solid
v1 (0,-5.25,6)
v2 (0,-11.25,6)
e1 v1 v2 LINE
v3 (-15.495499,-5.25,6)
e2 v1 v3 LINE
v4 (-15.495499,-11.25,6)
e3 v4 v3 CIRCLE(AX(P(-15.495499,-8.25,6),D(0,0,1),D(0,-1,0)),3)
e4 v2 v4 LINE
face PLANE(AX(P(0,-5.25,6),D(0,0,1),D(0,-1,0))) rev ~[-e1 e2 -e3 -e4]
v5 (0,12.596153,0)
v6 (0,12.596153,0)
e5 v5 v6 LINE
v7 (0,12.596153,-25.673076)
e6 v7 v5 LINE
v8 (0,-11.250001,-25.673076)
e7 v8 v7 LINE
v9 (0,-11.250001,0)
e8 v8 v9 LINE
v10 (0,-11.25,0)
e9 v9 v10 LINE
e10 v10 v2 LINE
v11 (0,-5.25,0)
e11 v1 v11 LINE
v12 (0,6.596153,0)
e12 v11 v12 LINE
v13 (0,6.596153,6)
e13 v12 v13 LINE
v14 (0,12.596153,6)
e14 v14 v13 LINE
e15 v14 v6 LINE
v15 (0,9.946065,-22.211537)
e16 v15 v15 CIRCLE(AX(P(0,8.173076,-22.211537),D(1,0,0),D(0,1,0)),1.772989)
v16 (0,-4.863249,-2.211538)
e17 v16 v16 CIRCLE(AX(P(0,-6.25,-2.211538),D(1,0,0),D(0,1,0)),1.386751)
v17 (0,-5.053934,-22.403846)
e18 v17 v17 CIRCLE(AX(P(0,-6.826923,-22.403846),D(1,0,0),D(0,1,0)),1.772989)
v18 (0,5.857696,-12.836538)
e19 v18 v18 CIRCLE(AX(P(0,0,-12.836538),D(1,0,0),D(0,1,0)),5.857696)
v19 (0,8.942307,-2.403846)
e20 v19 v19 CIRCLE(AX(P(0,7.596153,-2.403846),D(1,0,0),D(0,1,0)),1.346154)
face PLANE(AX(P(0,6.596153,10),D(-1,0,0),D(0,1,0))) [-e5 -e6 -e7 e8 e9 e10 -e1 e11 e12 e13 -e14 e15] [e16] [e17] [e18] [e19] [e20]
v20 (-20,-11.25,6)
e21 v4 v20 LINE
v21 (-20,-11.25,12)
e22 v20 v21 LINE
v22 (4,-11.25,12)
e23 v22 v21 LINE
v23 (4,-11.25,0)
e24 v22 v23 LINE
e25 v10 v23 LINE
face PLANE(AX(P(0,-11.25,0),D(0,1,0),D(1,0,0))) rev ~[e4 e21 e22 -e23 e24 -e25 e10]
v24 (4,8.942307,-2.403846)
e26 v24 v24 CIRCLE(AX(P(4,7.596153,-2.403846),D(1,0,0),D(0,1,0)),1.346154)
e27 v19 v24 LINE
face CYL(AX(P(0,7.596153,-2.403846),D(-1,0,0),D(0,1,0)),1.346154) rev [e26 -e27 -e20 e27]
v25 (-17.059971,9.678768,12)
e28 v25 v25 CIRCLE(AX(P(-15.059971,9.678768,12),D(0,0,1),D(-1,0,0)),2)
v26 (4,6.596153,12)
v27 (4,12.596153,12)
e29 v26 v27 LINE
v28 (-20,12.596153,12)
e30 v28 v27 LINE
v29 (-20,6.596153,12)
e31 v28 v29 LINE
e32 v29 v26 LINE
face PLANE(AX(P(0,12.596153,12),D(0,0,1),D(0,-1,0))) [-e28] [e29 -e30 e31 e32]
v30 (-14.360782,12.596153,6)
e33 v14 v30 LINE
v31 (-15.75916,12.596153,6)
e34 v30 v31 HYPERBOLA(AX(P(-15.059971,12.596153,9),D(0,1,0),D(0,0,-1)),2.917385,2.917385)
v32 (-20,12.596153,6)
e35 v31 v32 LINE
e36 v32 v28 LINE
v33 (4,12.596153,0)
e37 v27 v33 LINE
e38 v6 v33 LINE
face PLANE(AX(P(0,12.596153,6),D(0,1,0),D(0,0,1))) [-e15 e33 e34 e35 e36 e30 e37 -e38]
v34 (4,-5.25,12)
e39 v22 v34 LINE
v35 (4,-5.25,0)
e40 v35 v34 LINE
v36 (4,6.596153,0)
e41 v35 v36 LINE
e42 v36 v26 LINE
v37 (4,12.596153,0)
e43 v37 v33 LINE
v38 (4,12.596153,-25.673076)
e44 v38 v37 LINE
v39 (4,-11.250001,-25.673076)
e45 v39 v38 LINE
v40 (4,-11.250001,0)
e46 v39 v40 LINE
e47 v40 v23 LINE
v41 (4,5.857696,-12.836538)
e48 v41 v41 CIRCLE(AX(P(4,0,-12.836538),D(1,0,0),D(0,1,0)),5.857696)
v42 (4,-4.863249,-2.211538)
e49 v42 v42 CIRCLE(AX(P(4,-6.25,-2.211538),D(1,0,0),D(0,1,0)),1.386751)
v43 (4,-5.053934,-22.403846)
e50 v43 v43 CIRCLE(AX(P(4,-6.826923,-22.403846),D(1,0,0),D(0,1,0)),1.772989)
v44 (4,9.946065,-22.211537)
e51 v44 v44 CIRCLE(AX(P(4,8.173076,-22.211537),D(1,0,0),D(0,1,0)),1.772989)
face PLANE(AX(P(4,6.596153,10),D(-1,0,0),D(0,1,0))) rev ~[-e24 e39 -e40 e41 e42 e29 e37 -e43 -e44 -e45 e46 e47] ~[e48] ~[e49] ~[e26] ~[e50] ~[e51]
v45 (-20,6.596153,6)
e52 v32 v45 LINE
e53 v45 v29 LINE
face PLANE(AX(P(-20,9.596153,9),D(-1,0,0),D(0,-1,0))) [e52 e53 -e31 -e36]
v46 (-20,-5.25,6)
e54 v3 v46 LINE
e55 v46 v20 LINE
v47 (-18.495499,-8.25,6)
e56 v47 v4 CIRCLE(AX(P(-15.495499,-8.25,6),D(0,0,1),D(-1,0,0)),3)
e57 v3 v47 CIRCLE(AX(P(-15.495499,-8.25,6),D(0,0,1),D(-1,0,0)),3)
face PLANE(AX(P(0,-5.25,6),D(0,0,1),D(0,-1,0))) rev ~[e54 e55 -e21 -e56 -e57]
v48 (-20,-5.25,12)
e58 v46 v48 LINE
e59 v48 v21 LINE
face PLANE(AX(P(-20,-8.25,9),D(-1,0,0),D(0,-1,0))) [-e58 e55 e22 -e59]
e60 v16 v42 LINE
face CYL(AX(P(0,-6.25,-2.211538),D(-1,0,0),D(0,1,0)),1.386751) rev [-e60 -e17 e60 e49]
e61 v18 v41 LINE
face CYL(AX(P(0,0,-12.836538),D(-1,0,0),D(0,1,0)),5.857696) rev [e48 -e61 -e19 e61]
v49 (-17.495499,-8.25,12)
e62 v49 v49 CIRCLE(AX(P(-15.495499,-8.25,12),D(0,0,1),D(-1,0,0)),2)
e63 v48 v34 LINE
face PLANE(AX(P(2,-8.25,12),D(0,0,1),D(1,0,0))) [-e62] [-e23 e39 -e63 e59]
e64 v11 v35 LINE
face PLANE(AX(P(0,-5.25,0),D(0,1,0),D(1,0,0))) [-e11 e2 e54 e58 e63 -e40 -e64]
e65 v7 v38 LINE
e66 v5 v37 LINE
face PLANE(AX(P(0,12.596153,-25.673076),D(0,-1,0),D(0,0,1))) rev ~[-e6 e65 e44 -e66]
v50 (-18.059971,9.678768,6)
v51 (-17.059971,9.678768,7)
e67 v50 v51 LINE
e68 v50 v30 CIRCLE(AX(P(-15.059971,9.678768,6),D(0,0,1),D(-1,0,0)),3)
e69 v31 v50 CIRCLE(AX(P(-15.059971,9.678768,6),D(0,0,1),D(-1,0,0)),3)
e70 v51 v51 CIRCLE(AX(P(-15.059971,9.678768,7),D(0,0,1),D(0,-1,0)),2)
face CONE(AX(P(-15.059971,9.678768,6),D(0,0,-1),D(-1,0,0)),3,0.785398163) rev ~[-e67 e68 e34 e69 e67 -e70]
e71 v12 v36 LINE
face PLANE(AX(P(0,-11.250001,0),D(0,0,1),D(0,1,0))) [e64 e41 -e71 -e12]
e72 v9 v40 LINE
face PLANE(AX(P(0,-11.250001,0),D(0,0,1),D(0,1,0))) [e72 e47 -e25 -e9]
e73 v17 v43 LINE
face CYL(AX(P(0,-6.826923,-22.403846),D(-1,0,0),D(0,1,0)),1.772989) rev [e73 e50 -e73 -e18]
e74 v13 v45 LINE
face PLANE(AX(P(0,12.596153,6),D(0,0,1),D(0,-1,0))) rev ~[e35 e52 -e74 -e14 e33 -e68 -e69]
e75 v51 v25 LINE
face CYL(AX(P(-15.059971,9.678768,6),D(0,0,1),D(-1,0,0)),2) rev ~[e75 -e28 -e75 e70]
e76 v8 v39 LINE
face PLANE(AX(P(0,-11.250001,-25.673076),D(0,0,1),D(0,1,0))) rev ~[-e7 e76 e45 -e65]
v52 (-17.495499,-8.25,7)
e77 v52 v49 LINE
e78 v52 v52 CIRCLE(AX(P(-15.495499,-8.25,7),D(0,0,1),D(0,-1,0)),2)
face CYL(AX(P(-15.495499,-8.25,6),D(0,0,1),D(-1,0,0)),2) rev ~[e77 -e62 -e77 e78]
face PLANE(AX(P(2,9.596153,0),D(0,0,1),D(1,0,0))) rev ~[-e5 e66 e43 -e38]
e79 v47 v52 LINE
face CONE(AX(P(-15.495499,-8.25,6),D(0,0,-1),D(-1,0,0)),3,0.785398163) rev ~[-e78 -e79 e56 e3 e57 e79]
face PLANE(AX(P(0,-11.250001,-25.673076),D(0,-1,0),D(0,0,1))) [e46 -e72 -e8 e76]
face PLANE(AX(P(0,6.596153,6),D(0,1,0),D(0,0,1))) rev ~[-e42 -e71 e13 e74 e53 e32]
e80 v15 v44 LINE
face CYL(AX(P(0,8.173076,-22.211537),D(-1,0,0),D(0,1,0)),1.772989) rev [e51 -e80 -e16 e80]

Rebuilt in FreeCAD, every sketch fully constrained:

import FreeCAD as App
import Part
import Sketcher

V = App.Vector


def add_polygon(sketch, points):
    """Adds a closed chain of lines whose ends are joined by coincident constraints."""
    first, n = sketch.GeometryCount, len(points)
    for a, b in zip(points, points[1:] + points[:1]):
        sketch.addGeometry(Part.LineSegment(App.Vector(*a, 0), App.Vector(*b, 0)), False)
    for i in range(n):
        sketch.addConstraint(Sketcher.Constraint("Coincident", first + i, 2, first + (i + 1) % n, 1))

doc = App.newDocument("Part")
body = doc.addObject("PartDesign::Body", "Body")

sketch1 = body.newObject("Sketcher::SketchObject", "Sketch")
sketch1.AttachmentSupport = (doc.getObject("YZ_Plane"), [""])
sketch1.MapMode = "FlatFace"
add_polygon(sketch1, [(-11.3, 0), (-11.3, -25.7), (12.6, -25.7), (12.6, 0)])
sketch1.addGeometry(Part.Circle(V(-6.8, -22.4, 0), V(0, 0, 1), 1.8), False)
sketch1.addGeometry(Part.Circle(V(0, -12.8, 0), V(0, 0, 1), 5.9), False)
sketch1.addGeometry(Part.Circle(V(8.2, -22.2, 0), V(0, 0, 1), 1.8), False)
sketch1.addGeometry(Part.Circle(V(-6.2, -2.2, 0), V(0, 0, 1), 1.4), False)
sketch1.addGeometry(Part.Circle(V(7.6, -2.4, 0), V(0, 0, 1), 1.3), False)
sketch1.addConstraint([
    Sketcher.Constraint("Vertical", 0),
    Sketcher.Constraint("Horizontal", 1),
    Sketcher.Constraint("Vertical", 2),
    Sketcher.Constraint("Horizontal", 3),
    Sketcher.Constraint("Equal", 4, 6),
    Sketcher.Constraint("PointOnObject", 5, 3, -2),
    Sketcher.Constraint("PointOnObject", 2, 2, -1),
    Sketcher.Constraint("DistanceX", 4, 3, 6, 3, 14.999999),
    Sketcher.Constraint("DistanceY", 6, 3, 7, 3, 19.999999),
    Sketcher.Constraint("DistanceY", 4, 3, 8, 3, 20.0),
    Sketcher.Constraint("DistanceX", 0, 2, 7, 3, 5.000001),
    Sketcher.Constraint("DistanceX", 8, 3, 1, 2, 5.0),
    Sketcher.Constraint("Diameter", 8, 2.692308),
    Sketcher.Constraint("DistanceX", 7, 3, -1, 1, 6.25),
    Sketcher.Constraint("Diameter", 4, 3.545978),
    Sketcher.Constraint("Diameter", 5, 11.715392),
    Sketcher.Constraint("Diameter", 7, 2.773502),
    Sketcher.Constraint("DistanceY", 6, 3, 5, 3, 9.374999),
    Sketcher.Constraint("DistanceX", 1, 1, 1, 2, 23.846153),
    Sketcher.Constraint("DistanceY", 0, 2, 0, 1, 25.673076),
    Sketcher.Constraint("DistanceY", 7, 3, -1, 1, 2.211538),
    Sketcher.Constraint("DistanceY", 4, 3, 5, 3, 9.567308),
    Sketcher.Constraint("DistanceX", 4, 3, -1, 1, 6.826923),
])
pad1 = body.newObject("PartDesign::Pad", "Pad")
pad1.Profile = sketch1
pad1.Length = 4

sketch2 = body.newObject("Sketcher::SketchObject", "Sketch001")
sketch2.AttachmentSupport = (doc.getObject("XY_Plane"), [""])
sketch2.MapMode = "FlatFace"
add_polygon(sketch2, [(0, 12.6), (0, 6.6), (4, 6.6), (4, 12.6)])
add_polygon(sketch2, [(0, -5.2), (0, -11.2), (4, -11.2), (4, -5.2)])
sketch2.addConstraint([
    Sketcher.Constraint("Vertical", 0),
    Sketcher.Constraint("Horizontal", 1),
    Sketcher.Constraint("Vertical", 2),
    Sketcher.Constraint("Horizontal", 3),
    Sketcher.Constraint("Vertical", 4),
    Sketcher.Constraint("Horizontal", 5),
    Sketcher.Constraint("Vertical", 6),
    Sketcher.Constraint("Horizontal", 7),
    Sketcher.Constraint("PointOnObject", 0, 2, -2),
    Sketcher.Constraint("PointOnObject", 4, 2, -2),
    Sketcher.Constraint("Vertical", 2, 2, 5, 2),
    Sketcher.Constraint("Equal", 2, 4),
    Sketcher.Constraint("DistanceX", 1, 1, 1, 2, 4.0),
    Sketcher.Constraint("DistanceY", 0, 2, 0, 1, 6.0),
    Sketcher.Constraint("DistanceY", 4, 2, -1, 1, 11.25),
    Sketcher.Constraint("DistanceY", -1, 1, 0, 2, 6.596153),
])
pad2 = body.newObject("PartDesign::Pad", "Pad001")
pad2.Profile = sketch2
pad2.Length = 10

sketch3 = body.newObject("Sketcher::SketchObject", "Sketch002")
sketch3.AttachmentSupport = (doc.getObject("XY_Plane"), [""])
sketch3.MapMode = "FlatFace"
sketch3.AttachmentOffset = App.Placement(V(0, 0, 10), App.Rotation())
add_polygon(sketch3, [(0, 12.6), (0, 6.6), (4, 6.6), (4, 12.6)])
add_polygon(sketch3, [(0, -5.2), (0, -11.2), (4, -11.2), (4, -5.2)])
sketch3.addConstraint([
    Sketcher.Constraint("Vertical", 0),
    Sketcher.Constraint("Horizontal", 1),
    Sketcher.Constraint("Vertical", 2),
    Sketcher.Constraint("Horizontal", 3),
    Sketcher.Constraint("Vertical", 4),
    Sketcher.Constraint("Horizontal", 5),
    Sketcher.Constraint("Vertical", 6),
    Sketcher.Constraint("Horizontal", 7),
    Sketcher.Constraint("PointOnObject", 0, 2, -2),
    Sketcher.Constraint("PointOnObject", 4, 2, -2),
    Sketcher.Constraint("Vertical", 2, 2, 5, 2),
    Sketcher.Constraint("Equal", 2, 4),
    Sketcher.Constraint("DistanceX", 1, 1, 1, 2, 4.0),
    Sketcher.Constraint("DistanceY", 0, 2, 0, 1, 6.0),
    Sketcher.Constraint("DistanceY", 4, 2, -1, 1, 11.25),
    Sketcher.Constraint("DistanceY", -1, 1, 0, 2, 6.596153),
])
pad3 = body.newObject("PartDesign::Pad", "Pad002")
pad3.Profile = sketch3
pad3.Length = 2

sketch4 = body.newObject("Sketcher::SketchObject", "Sketch003")
sketch4.AttachmentSupport = (doc.getObject("YZ_Plane"), [""])
sketch4.MapMode = "FlatFace"
add_polygon(sketch4, [(13, 12), (13, 6), (7, 6), (7, 12)])
add_polygon(sketch4, [(-5, 12), (-5, 6), (-11, 6), (-11, 12)])
sketch4.addConstraint([
    Sketcher.Constraint("Vertical", 0),
    Sketcher.Constraint("Horizontal", 1),
    Sketcher.Constraint("Vertical", 2),
    Sketcher.Constraint("Horizontal", 3),
    Sketcher.Constraint("Vertical", 4),
    Sketcher.Constraint("Horizontal", 5),
    Sketcher.Constraint("Vertical", 6),
    Sketcher.Constraint("Horizontal", 7),
    Sketcher.Constraint("Horizontal", 1, 2, 4, 2),
    Sketcher.Constraint("Horizontal", 3, 2, 6, 2),
    Sketcher.Constraint("Equal", 3, 5),
    Sketcher.Constraint("Equal", 7, 0),
    Sketcher.Constraint("DistanceX", 1, 2, 1, 1, 6.0),
    Sketcher.Constraint("DistanceY", -1, 1, 0, 2, 6.0),
    Sketcher.Constraint("DistanceX", 4, 2, -1, 1, 5.25),
    Sketcher.Constraint("DistanceX", -1, 1, 0, 2, 12.596153),
])
pad4 = body.newObject("PartDesign::Pad", "Pad003")
pad4.Profile = sketch4
pad4.Length = 20
pad4.Reversed = True

sketch5 = body.newObject("Sketcher::SketchObject", "Sketch004")
sketch5.AttachmentSupport = (doc.getObject("XY_Plane"), [""])
sketch5.MapMode = "FlatFace"
sketch5.AttachmentOffset = App.Placement(V(0, 0, 6), App.Rotation())
sketch5.addGeometry(Part.Circle(V(-15.5, -8.2, 0), V(0, 0, 1), 2), False)
sketch5.addConstraint([
    Sketcher.Constraint("Diameter", 0, 4.0),
    Sketcher.Constraint("DistanceY", 0, 3, -1, 1, 8.25),
    Sketcher.Constraint("DistanceX", 0, 3, -1, 1, 15.495499),
])
doc.recompute()
hole = body.newObject("PartDesign::Hole", "Hole")
hole.Profile = sketch5
hole.ThreadType = "None"
hole.Diameter = 4
hole.DepthType = "ThroughAll"
hole.HoleCutType = "Countersink"
hole.HoleCutDiameter = 6
hole.HoleCutCountersinkAngle = 90
hole.Reversed = True

sketch6 = body.newObject("Sketcher::SketchObject", "Sketch005")
sketch6.AttachmentSupport = (doc.getObject("XY_Plane"), [""])
sketch6.MapMode = "FlatFace"
sketch6.AttachmentOffset = App.Placement(V(0, 0, 6), App.Rotation())
sketch6.addGeometry(Part.Circle(V(-15.1, 9.7, 0), V(0, 0, 1), 2), False)
sketch6.addConstraint([
    Sketcher.Constraint("Diameter", 0, 4.0),
    Sketcher.Constraint("DistanceX", 0, 3, -1, 1, 15.059971),
    Sketcher.Constraint("DistanceY", -1, 1, 0, 3, 9.678768),
])
doc.recompute()
hole2 = body.newObject("PartDesign::Hole", "Hole001")
hole2.Profile = sketch6
hole2.ThreadType = "None"
hole2.Diameter = 4
hole2.DepthType = "ThroughAll"
hole2.HoleCutType = "Countersink"
hole2.HoleCutDiameter = 6
hole2.HoleCutCountersinkAngle = 90
hole2.Reversed = True

doc.recompute()
